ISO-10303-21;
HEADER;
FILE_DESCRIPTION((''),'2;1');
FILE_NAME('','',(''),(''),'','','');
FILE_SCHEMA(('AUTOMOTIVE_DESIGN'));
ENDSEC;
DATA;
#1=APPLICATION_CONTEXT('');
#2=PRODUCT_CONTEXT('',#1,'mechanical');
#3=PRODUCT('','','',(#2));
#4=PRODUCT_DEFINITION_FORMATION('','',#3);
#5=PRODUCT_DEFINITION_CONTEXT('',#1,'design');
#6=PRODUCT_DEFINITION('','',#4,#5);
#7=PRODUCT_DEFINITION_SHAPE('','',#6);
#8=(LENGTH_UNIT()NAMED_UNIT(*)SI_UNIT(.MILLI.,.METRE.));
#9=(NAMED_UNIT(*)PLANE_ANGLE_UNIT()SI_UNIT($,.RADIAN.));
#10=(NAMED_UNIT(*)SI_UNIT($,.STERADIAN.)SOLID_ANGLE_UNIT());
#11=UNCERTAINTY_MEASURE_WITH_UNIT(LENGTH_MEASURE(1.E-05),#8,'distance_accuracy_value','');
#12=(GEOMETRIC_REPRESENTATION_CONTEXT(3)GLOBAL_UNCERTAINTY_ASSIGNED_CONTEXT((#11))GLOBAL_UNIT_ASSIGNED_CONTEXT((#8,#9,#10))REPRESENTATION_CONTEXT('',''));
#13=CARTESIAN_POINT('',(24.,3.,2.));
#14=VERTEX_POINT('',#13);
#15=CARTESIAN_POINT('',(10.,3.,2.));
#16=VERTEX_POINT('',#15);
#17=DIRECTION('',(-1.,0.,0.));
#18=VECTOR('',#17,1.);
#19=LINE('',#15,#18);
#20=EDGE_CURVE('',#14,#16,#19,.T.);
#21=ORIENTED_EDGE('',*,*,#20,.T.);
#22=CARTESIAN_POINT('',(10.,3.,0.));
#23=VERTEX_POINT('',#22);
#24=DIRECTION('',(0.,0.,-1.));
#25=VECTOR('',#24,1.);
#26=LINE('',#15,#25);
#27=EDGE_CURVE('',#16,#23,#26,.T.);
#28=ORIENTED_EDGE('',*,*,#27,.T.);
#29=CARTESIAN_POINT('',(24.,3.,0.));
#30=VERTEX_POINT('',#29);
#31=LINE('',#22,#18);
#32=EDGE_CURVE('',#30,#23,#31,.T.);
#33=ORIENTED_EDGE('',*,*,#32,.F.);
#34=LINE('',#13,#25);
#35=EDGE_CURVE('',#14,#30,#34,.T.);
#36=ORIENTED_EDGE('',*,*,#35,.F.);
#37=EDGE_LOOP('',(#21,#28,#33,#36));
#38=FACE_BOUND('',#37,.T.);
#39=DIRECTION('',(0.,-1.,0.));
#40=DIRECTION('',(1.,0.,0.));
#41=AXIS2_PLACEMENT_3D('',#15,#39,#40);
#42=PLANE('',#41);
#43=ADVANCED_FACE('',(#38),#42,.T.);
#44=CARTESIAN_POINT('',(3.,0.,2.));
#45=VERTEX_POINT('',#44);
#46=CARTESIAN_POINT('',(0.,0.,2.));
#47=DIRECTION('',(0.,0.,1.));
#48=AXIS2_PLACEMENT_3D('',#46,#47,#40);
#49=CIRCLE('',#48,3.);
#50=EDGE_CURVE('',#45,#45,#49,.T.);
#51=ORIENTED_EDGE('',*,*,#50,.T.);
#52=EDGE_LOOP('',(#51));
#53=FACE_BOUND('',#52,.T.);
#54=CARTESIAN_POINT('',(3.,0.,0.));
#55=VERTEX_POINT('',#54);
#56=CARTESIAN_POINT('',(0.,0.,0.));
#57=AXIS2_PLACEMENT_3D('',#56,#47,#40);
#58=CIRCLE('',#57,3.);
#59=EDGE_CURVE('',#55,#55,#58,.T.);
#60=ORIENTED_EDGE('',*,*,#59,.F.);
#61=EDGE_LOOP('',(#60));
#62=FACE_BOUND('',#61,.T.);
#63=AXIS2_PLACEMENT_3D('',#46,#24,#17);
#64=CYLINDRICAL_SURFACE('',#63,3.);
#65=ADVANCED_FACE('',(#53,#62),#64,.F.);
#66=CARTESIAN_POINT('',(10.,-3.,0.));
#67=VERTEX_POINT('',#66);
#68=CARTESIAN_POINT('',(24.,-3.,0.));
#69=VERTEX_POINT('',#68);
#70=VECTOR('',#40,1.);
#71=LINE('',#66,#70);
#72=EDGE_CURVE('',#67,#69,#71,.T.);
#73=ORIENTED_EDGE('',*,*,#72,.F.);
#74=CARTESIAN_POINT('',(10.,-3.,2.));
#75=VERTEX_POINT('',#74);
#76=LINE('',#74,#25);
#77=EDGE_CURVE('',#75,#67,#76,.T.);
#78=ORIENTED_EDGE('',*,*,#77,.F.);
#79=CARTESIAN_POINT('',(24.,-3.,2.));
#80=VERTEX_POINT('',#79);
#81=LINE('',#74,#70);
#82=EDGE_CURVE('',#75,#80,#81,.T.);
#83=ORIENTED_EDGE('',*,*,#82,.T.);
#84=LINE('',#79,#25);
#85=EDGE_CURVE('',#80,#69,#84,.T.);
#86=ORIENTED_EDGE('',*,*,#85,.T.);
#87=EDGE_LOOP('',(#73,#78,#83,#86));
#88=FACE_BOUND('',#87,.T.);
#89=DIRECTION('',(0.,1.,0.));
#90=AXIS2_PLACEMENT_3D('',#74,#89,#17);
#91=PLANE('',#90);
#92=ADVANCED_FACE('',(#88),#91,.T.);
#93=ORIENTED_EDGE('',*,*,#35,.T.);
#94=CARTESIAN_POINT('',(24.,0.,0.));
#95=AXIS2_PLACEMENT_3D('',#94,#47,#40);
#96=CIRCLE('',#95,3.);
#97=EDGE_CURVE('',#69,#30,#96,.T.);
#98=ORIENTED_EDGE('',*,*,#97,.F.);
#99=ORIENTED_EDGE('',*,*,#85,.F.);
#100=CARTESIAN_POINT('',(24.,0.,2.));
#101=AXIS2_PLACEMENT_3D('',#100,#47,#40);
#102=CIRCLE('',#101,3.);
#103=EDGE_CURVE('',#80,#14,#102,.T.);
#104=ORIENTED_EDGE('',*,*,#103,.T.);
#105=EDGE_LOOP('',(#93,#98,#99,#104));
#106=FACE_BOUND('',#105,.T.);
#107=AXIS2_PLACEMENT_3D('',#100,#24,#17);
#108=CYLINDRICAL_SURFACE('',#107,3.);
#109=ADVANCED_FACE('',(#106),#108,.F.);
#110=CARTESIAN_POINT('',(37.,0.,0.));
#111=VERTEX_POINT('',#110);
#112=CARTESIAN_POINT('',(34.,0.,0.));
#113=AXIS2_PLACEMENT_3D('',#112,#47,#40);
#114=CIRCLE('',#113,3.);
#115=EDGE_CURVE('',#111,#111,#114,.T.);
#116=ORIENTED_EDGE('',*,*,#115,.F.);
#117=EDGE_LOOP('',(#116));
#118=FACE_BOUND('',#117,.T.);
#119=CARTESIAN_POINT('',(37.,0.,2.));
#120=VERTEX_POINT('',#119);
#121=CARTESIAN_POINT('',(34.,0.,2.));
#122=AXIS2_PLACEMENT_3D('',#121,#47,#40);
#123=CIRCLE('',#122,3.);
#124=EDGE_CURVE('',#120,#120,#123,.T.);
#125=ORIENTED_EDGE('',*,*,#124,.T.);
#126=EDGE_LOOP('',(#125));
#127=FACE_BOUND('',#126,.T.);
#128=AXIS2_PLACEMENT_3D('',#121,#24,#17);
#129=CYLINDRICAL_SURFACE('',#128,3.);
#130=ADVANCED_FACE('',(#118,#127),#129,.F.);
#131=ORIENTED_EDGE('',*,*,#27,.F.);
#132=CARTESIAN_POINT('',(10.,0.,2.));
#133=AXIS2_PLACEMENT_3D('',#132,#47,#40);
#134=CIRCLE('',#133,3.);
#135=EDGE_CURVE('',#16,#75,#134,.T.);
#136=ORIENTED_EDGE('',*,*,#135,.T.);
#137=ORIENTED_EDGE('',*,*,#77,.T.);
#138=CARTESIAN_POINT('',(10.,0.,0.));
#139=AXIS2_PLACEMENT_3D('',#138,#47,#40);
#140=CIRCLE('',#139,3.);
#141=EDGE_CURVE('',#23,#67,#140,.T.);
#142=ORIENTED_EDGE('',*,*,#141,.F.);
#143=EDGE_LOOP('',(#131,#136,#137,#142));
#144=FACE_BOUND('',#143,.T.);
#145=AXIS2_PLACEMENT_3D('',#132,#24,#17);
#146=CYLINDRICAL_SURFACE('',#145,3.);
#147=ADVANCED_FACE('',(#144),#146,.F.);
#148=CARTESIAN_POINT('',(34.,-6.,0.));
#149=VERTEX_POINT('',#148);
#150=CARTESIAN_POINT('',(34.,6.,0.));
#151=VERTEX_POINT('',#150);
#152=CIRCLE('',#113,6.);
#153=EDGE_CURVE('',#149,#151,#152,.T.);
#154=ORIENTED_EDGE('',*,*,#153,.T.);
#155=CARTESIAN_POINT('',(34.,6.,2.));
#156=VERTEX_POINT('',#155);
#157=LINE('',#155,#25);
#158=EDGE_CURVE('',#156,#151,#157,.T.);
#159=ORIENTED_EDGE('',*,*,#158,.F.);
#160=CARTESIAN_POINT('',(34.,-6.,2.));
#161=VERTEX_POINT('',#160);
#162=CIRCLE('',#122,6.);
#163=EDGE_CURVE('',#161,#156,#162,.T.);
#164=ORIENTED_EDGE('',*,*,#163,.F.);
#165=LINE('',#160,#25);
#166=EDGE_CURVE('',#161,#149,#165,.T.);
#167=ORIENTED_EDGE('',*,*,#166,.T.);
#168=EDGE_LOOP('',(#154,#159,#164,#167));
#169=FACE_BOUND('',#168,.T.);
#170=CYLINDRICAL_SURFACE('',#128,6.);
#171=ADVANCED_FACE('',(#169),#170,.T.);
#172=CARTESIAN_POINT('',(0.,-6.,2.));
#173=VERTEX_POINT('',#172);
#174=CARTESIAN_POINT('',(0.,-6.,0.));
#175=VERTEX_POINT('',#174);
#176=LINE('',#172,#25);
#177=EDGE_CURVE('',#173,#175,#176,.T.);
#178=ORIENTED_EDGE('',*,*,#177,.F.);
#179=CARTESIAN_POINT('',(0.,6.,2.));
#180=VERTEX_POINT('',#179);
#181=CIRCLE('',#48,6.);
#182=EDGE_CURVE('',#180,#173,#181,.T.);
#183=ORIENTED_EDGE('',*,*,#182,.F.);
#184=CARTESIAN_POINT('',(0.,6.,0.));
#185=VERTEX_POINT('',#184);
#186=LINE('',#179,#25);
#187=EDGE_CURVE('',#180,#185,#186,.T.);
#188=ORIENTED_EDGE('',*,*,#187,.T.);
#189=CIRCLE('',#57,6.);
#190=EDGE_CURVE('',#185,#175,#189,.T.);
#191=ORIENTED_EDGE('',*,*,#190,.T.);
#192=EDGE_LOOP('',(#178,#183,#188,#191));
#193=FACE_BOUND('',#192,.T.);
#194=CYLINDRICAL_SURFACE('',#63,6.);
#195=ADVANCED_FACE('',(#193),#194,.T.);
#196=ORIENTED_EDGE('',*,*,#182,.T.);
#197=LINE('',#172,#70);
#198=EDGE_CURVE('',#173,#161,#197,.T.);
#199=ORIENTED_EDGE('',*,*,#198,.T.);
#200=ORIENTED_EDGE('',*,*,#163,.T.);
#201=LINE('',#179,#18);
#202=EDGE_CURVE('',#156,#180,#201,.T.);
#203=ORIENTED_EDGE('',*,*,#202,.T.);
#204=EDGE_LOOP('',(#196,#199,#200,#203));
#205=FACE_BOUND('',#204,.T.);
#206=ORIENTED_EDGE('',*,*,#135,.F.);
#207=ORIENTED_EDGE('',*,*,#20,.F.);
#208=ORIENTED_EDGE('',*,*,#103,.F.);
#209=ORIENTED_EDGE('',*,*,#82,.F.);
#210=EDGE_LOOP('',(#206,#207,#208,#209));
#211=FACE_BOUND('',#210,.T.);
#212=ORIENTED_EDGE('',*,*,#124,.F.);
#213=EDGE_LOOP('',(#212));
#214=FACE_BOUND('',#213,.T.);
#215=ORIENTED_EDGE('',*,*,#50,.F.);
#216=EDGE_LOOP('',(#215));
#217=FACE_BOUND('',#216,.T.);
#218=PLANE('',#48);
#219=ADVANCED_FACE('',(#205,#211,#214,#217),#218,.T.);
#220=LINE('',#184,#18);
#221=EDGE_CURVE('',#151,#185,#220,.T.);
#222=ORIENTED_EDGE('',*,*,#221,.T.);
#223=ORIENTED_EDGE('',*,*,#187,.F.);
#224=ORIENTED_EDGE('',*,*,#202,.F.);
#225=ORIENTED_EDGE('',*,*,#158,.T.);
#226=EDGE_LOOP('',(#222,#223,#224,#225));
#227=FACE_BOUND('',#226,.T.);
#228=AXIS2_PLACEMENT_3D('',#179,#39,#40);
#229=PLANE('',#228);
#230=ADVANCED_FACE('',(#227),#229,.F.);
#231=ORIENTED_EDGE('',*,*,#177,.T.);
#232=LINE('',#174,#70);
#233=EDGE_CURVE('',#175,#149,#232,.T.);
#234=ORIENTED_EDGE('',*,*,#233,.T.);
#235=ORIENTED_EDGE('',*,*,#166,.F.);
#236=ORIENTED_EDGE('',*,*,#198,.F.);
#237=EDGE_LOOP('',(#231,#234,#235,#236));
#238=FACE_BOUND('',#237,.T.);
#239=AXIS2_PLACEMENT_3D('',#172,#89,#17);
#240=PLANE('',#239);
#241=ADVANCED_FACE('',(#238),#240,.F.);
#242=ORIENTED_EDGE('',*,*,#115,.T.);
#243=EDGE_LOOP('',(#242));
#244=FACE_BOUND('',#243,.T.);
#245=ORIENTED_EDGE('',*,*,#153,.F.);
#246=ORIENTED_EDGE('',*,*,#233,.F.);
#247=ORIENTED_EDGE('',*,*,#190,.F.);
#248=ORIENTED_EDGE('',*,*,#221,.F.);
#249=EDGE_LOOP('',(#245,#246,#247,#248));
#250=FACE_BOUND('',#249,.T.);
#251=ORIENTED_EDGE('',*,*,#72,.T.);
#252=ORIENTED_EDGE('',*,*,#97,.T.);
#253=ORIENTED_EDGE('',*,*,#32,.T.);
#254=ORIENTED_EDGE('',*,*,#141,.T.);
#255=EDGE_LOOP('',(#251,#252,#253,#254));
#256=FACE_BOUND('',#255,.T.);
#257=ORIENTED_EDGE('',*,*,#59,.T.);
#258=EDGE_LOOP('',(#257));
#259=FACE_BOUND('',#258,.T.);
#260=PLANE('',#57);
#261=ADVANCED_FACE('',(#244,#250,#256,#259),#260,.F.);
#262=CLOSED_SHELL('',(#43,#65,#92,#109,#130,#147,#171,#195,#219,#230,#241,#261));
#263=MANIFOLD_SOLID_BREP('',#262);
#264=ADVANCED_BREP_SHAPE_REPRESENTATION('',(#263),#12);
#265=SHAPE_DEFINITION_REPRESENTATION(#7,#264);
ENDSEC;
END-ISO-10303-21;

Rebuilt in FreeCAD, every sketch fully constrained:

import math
import FreeCAD as App
import Part
import Sketcher

V = App.Vector

doc = App.newDocument("Part")
body = doc.addObject("PartDesign::Body", "Body")

sketch1 = body.newObject("Sketcher::SketchObject", "Sketch")
sketch1.AttachmentSupport = (doc.getObject("XY_Plane"), [""])
sketch1.MapMode = "FlatFace"
sketch1.addGeometry([
    Part.LineSegment(V(34, 6, 0), V(0, 6, 0)),
    Part.ArcOfCircle(Part.Circle(V(0, 0, 0), V(0, 0, 1), 6), math.radians(90), math.radians(270)),
    Part.LineSegment(V(0, -6, 0), V(34, -6, 0)),
    Part.ArcOfCircle(Part.Circle(V(34, 0, 0), V(0, 0, 1), 6), math.radians(-90), math.radians(90)),
    Part.Circle(V(34, 0, 0), V(0, 0, 1), 3),
    Part.LineSegment(V(10, 3, 0), V(24, 3, 0)),
    Part.ArcOfCircle(Part.Circle(V(24, 0, 0), V(0, 0, 1), 3), math.radians(-90), math.radians(90)),
    Part.LineSegment(V(24, -3, 0), V(10, -3, 0)),
    Part.ArcOfCircle(Part.Circle(V(10, 0, 0), V(0, 0, 1), 3), math.radians(90), math.radians(270)),
    Part.Circle(V(0, 0, 0), V(0, 0, 1), 3),
], False)
sketch1.addConstraint([
    Sketcher.Constraint("Tangent", 0, 2, 1, 1),
    Sketcher.Constraint("Tangent", 1, 2, 2, 1),
    Sketcher.Constraint("Tangent", 2, 2, 3, 1),
    Sketcher.Constraint("Tangent", 3, 2, 0, 1),
    Sketcher.Constraint("Tangent", 5, 2, 6, 2),
    Sketcher.Constraint("Tangent", 6, 1, 7, 1),
    Sketcher.Constraint("Tangent", 7, 2, 8, 2),
    Sketcher.Constraint("Tangent", 8, 1, 5, 1),
    Sketcher.Constraint("Horizontal", 0),
    Sketcher.Constraint("Horizontal", 2),
    Sketcher.Constraint("Horizontal", 5),
    Sketcher.Constraint("Horizontal", 7),
    Sketcher.Constraint("Coincident", 1, 3, -1, 1),
    Sketcher.Constraint("Coincident", 9, 3, -1, 1),
    Sketcher.Constraint("Coincident", 4, 3, 3, 3),
    Sketcher.Constraint("Equal", 4, 6),
    Sketcher.Constraint("Equal", 8, 9),
    Sketcher.Constraint("PointOnObject", 6, 3, -1),
    Sketcher.Constraint("Diameter", 4, 6.0),
    Sketcher.Constraint("Radius", 1, 6.0),
    Sketcher.Constraint("DistanceX", 0, 2, 0, 1, 34.0),
    Sketcher.Constraint("DistanceX", 5, 1, 5, 2, 14.0),
    Sketcher.Constraint("DistanceX", -1, 1, 6, 3, 24.0),
])
pad1 = body.newObject("PartDesign::Pad", "Pad")
pad1.Profile = sketch1
pad1.Length = 2

doc.recompute()
